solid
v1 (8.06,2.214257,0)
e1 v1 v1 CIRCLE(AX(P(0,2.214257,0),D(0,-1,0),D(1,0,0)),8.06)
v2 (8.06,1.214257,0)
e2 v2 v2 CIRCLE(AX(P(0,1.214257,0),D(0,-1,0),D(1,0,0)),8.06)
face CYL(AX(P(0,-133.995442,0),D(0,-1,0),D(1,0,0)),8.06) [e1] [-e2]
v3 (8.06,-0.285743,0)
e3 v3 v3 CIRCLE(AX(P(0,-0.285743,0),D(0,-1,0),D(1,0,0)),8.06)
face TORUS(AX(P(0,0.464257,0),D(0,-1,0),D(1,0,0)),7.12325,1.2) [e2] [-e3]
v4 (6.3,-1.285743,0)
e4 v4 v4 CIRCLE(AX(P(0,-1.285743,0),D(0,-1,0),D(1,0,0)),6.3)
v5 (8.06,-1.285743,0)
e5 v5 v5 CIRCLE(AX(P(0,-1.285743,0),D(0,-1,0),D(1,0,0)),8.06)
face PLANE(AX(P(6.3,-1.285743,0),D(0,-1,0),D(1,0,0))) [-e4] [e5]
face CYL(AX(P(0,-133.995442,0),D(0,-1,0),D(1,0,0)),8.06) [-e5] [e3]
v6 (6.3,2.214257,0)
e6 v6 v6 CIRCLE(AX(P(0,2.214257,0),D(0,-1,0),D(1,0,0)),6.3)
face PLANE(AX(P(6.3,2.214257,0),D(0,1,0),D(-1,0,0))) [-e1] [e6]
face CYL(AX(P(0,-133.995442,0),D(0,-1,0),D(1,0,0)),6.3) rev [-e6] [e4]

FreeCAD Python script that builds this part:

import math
import FreeCAD as App
import Part
import Sketcher

V = App.Vector

doc = App.newDocument("Part")
body = doc.addObject("PartDesign::Body", "Body")

# Sketch on XY plane
sketch1 = body.newObject("Sketcher::SketchObject", "Sketch")
sketch1.AttachmentSupport = (doc.getObject("XY_Plane"), [""])
sketch1.MapMode = "FlatFace"
sketch1.addGeometry([
    Part.LineSegment(V(8.1, -1.3, 0), V(8.1, -0.3, 0)),  # 0
    Part.ArcOfCircle(Part.Circle(V(7.1, 0.5, 0), V(0, 0, 1), 1.2), math.radians(-39), math.radians(39)),  # 1
    Part.LineSegment(V(8.1, 1.2, 0), V(8.1, 2.2, 0)),  # 2
    Part.LineSegment(V(8.1, 2.2, 0), V(6.3, 2.2, 0)),  # 3
    Part.LineSegment(V(6.3, 2.2, 0), V(6.3, -1.3, 0)),  # 4
    Part.LineSegment(V(6.3, -1.3, 0), V(8.1, -1.3, 0)),  # 5
], False)
sketch1.addConstraint([
    Sketcher.Constraint("Coincident", 0, 2, 1, 1),
    Sketcher.Constraint("Coincident", 1, 2, 2, 1),
    Sketcher.Constraint("Coincident", 2, 2, 3, 1),
    Sketcher.Constraint("Coincident", 3, 2, 4, 1),
    Sketcher.Constraint("Coincident", 4, 2, 5, 1),
    Sketcher.Constraint("Coincident", 5, 2, 0, 1),
    Sketcher.Constraint("Vertical", 0),
    Sketcher.Constraint("Vertical", 2),
    Sketcher.Constraint("Horizontal", 3),
    Sketcher.Constraint("Vertical", 4),
    Sketcher.Constraint("Horizontal", 5),
    Sketcher.Constraint("Vertical", 0, 2, 1, 2),
    Sketcher.Constraint("Equal", 0, 2),
    Sketcher.Constraint("Radius", 1, 1.2),
    Sketcher.Constraint("DistanceY", 0, 1, 0, 2, 1.0),
    Sketcher.Constraint("DistanceY", 4, 2, 4, 1, 3.5),
    Sketcher.Constraint("DistanceX", 3, 2, 3, 1, 1.76),
    Sketcher.Constraint("DistanceX", -1, 1, 3, 2, 6.3),
    Sketcher.Constraint("DistanceY", -1, 1, 1, 3, 0.464257),
])
revolution = body.newObject("PartDesign::Revolution", "Revolution")
revolution.Profile = sketch1
revolution.ReferenceAxis = (sketch1, ["V_Axis"])
revolution.Angle = 360

doc.recompute()
